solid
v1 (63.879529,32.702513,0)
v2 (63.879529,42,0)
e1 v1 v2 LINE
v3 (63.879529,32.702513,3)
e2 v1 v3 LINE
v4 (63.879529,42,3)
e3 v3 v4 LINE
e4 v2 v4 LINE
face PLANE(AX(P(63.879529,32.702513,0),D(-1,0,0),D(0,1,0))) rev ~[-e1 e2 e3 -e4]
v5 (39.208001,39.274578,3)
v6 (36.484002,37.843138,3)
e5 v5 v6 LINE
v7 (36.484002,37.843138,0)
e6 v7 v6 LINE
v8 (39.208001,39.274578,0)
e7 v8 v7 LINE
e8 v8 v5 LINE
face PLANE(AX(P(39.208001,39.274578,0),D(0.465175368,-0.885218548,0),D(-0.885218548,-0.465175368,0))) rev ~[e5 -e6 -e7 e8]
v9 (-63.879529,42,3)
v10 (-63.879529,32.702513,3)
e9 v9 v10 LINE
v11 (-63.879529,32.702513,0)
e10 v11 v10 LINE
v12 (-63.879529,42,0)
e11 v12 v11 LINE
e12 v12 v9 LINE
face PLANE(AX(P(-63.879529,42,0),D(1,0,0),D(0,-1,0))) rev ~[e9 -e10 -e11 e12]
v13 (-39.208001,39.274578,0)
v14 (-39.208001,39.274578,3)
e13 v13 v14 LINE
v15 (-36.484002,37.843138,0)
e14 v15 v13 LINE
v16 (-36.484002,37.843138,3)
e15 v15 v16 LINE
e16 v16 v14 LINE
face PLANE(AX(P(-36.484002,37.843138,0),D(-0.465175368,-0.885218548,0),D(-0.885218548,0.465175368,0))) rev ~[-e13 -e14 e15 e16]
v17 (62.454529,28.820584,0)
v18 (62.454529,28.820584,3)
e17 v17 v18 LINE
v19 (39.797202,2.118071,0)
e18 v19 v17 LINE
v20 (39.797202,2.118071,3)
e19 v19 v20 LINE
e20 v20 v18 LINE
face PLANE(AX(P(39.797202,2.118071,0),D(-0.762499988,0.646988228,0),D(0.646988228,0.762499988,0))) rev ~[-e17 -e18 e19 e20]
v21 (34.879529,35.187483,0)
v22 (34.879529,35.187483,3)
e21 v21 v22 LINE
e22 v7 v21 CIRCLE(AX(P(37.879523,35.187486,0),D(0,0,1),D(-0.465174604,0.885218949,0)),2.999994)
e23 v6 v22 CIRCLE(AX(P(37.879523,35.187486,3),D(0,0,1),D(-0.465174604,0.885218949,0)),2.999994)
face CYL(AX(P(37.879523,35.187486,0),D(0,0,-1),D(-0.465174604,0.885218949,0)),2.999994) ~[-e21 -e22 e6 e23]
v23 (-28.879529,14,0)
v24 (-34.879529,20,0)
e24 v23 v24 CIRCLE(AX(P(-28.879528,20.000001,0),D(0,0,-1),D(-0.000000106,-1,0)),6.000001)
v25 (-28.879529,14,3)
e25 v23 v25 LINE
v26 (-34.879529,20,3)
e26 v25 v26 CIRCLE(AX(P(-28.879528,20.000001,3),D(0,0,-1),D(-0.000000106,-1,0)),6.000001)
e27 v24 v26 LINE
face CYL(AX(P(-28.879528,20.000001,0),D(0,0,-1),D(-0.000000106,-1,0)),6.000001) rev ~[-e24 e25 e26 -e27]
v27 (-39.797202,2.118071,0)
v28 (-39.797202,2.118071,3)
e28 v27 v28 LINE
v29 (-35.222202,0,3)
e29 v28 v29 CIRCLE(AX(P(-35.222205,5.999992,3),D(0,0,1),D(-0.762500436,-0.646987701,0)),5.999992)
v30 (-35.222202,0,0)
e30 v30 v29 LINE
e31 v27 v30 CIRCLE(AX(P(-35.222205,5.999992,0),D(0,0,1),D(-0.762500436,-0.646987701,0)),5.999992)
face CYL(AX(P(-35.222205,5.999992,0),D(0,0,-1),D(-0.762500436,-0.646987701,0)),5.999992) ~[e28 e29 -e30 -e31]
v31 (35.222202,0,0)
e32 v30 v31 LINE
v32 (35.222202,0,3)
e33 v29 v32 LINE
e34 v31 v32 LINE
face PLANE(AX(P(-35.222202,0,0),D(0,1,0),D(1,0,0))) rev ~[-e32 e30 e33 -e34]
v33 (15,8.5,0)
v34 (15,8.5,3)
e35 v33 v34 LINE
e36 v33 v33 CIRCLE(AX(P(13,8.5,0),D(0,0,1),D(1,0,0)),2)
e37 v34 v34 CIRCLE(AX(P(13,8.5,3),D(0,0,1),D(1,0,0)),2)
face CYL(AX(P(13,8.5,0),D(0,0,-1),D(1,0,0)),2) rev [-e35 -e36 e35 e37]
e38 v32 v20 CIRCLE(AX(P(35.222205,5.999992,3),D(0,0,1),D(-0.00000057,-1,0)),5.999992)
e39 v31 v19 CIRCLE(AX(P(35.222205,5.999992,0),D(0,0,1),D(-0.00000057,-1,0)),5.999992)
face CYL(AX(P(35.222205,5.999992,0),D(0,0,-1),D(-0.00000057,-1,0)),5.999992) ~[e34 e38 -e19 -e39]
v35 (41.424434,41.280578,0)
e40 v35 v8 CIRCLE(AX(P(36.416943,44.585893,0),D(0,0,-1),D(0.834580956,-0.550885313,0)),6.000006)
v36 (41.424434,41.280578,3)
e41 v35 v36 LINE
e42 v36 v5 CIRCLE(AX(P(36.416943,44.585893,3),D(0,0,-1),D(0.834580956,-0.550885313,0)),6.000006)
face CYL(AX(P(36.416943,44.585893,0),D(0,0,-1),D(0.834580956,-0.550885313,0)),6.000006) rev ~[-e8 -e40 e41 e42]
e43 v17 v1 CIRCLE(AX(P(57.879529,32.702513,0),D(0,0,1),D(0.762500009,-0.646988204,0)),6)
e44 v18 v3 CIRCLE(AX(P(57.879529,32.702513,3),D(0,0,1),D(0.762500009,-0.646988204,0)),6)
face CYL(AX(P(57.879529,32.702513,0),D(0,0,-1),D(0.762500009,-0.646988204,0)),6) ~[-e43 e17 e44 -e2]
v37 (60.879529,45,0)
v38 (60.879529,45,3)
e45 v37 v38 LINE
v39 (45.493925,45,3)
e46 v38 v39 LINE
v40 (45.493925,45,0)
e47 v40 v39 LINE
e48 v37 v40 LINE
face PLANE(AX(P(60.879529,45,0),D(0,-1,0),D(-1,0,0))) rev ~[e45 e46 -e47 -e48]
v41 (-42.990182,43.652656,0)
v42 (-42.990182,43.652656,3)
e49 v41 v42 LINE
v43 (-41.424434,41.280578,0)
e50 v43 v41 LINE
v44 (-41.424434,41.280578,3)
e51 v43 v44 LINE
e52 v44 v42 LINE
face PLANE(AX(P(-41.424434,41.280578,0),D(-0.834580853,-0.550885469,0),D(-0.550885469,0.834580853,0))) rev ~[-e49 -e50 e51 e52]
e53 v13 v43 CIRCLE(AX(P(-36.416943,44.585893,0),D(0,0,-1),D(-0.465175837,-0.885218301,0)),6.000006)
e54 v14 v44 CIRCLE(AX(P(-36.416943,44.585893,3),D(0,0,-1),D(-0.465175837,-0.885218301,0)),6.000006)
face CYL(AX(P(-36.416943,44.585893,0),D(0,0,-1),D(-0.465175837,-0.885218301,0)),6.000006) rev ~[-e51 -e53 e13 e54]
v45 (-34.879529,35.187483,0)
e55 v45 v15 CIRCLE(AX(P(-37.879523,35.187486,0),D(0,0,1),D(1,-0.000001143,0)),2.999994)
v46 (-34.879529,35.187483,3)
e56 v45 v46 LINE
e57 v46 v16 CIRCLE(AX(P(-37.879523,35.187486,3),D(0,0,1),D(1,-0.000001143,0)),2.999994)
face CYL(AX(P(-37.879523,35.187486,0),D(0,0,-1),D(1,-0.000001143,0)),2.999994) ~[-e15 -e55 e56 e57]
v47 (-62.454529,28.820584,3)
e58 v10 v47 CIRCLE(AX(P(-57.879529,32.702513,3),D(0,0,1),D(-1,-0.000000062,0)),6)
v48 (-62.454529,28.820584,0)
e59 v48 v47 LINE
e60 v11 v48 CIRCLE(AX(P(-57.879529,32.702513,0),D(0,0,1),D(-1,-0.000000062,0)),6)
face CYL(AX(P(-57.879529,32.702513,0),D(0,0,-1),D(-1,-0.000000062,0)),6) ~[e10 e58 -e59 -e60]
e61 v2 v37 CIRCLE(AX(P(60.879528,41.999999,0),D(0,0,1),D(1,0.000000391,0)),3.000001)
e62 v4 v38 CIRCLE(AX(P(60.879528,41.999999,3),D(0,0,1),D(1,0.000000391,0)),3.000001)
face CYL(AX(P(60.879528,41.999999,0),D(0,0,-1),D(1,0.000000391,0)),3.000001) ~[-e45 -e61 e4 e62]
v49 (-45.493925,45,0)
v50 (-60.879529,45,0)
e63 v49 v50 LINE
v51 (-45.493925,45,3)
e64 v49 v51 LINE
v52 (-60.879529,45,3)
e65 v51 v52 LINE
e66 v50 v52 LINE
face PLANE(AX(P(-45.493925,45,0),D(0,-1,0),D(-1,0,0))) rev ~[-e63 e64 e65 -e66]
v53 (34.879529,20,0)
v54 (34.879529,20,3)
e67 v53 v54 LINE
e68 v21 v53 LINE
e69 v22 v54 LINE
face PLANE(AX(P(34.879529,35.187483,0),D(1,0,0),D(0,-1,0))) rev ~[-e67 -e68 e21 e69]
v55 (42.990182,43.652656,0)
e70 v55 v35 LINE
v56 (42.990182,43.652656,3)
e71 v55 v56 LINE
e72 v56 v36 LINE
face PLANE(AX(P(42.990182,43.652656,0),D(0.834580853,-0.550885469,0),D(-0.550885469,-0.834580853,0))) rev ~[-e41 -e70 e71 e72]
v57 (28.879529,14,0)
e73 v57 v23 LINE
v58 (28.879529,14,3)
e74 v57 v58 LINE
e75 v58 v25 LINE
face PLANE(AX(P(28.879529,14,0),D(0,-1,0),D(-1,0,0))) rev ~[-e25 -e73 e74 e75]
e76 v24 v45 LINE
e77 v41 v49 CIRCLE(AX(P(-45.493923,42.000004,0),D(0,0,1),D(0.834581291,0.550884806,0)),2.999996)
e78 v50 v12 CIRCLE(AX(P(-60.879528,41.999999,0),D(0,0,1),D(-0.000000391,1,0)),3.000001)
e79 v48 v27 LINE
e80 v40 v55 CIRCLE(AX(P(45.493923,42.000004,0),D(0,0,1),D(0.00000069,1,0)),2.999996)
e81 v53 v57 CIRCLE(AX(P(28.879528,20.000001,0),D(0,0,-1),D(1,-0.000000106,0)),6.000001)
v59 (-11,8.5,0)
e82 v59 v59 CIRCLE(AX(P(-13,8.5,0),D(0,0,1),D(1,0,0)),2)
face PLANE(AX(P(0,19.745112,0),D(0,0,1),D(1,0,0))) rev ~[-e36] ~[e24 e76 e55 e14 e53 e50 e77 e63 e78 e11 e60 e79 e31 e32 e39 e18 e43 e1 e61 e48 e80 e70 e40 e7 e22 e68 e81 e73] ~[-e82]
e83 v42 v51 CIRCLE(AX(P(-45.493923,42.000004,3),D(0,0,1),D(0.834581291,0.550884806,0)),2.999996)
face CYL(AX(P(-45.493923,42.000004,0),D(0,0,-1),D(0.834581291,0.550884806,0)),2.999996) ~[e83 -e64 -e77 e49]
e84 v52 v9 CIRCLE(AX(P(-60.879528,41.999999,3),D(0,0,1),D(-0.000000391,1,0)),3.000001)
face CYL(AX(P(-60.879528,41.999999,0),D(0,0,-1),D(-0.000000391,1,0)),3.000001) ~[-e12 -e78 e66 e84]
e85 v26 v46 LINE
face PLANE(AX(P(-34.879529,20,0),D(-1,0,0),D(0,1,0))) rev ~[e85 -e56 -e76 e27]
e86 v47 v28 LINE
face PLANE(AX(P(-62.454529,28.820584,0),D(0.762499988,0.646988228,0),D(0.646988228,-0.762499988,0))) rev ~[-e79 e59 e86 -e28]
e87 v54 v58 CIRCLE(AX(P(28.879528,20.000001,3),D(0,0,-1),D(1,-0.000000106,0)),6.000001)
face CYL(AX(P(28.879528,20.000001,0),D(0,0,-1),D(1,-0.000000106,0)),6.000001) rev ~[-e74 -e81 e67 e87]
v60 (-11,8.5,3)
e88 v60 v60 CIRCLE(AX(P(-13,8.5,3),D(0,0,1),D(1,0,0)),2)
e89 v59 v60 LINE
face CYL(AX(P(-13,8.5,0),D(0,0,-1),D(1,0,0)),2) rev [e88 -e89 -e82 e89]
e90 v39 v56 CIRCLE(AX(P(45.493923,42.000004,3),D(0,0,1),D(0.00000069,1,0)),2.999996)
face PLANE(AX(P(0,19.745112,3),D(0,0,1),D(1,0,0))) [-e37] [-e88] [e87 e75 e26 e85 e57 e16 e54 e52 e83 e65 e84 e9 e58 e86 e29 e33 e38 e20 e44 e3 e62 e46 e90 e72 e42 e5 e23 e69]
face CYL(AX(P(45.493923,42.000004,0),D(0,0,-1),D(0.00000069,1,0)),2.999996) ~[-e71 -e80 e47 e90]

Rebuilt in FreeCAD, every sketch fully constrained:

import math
import FreeCAD as App
import Part
import Sketcher
Q = App.Units.Quantity

doc = App.newDocument("Part")
body = doc.addObject("PartDesign::Body", "Body")

# Sketch on XY plane
sketch1 = body.newObject("Sketcher::SketchObject", "Sketch")
sketch1.AttachmentSupport = (doc.getObject("XY_Plane"), [""])
sketch1.MapMode = "FlatFace"
sketch1.addGeometry(Part.LineSegment(App.Vector(-35.222202, 0, 0), App.Vector(35.222202, 0, 0)), False)
sketch1.addGeometry(Part.ArcOfCircle(Part.Circle(App.Vector(35.222205, 5.999992, 0), App.Vector(0, 0, 1), 5.999992), math.radians(-90.000033), math.radians(-40.314871)), False)
sketch1.addGeometry(Part.LineSegment(App.Vector(39.797202, 2.118071, 0), App.Vector(62.454529, 28.820584, 0)), False)
sketch1.addGeometry(Part.ArcOfCircle(Part.Circle(App.Vector(57.879529, 32.702513, 0), App.Vector(0, 0, 1), 6), math.radians(-40.314908), math.radians(-0.000004)), False)
sketch1.addGeometry(Part.LineSegment(App.Vector(63.879529, 32.702513, 0), App.Vector(63.879529, 42, 0)), False)
sketch1.addGeometry(Part.ArcOfCircle(Part.Circle(App.Vector(60.879528, 41.999999, 0), App.Vector(0, 0, 1), 3.000001), math.radians(0.000022), math.radians(89.999978)), False)
sketch1.addGeometry(Part.LineSegment(App.Vector(60.879529, 45, 0), App.Vector(45.493925, 45, 0)), False)
sketch1.addGeometry(Part.ArcOfCircle(Part.Circle(App.Vector(45.493923, 42.000004, 0), App.Vector(0, 0, 1), 2.999996), math.radians(89.99996), math.radians(146.572264)), False)
sketch1.addGeometry(Part.LineSegment(App.Vector(42.990182, 43.652656, 0), App.Vector(41.424434, 41.280578, 0)), False)
sketch1.addGeometry(Part.ArcOfCircle(Part.Circle(App.Vector(36.416943, 44.585893, 0), App.Vector(0, 0, 1), 6.000006), math.radians(-62.278397), math.radians(-33.42777)), False)
sketch1.addGeometry(Part.LineSegment(App.Vector(39.208001, 39.274578, 0), App.Vector(36.484002, 37.843138, 0)), False)
sketch1.addGeometry(Part.ArcOfCircle(Part.Circle(App.Vector(37.879523, 35.187486, 0), App.Vector(0, 0, 1), 2.999994), math.radians(117.721523), math.radians(180.000065)), False)
sketch1.addGeometry(Part.LineSegment(App.Vector(34.879529, 35.187483, 0), App.Vector(34.879529, 20, 0)), False)
sketch1.addGeometry(Part.ArcOfCircle(Part.Circle(App.Vector(28.879528, 20.000001, 0), App.Vector(0, 0, 1), 6.000001), math.radians(-89.999994), math.radians(-0.000006)), False)
sketch1.addGeometry(Part.LineSegment(App.Vector(28.879529, 14, 0), App.Vector(-28.879529, 14, 0)), False)
sketch1.addGeometry(Part.ArcOfCircle(Part.Circle(App.Vector(-28.879528, 20.000001, 0), App.Vector(0, 0, 1), 6.000001), math.radians(-179.999994), math.radians(-90.000006)), False)
sketch1.addGeometry(Part.LineSegment(App.Vector(-34.879529, 20, 0), App.Vector(-34.879529, 35.187483, 0)), False)
sketch1.addGeometry(Part.ArcOfCircle(Part.Circle(App.Vector(-37.879523, 35.187486, 0), App.Vector(0, 0, 1), 2.999994), math.radians(-0.000065), math.radians(62.278477)), False)
sketch1.addGeometry(Part.LineSegment(App.Vector(-36.484002, 37.843138, 0), App.Vector(-39.208001, 39.274578, 0)), False)
sketch1.addGeometry(Part.ArcOfCircle(Part.Circle(App.Vector(-36.416943, 44.585893, 0), App.Vector(0, 0, 1), 6.000006), math.radians(-146.57223), math.radians(-117.721603)), False)
sketch1.addGeometry(Part.LineSegment(App.Vector(-41.424434, 41.280578, 0), App.Vector(-42.990182, 43.652656, 0)), False)
sketch1.addGeometry(Part.ArcOfCircle(Part.Circle(App.Vector(-45.493923, 42.000004, 0), App.Vector(0, 0, 1), 2.999996), math.radians(33.427736), math.radians(90.00004)), False)
sketch1.addGeometry(Part.LineSegment(App.Vector(-45.493925, 45, 0), App.Vector(-60.879529, 45, 0)), False)
sketch1.addGeometry(Part.ArcOfCircle(Part.Circle(App.Vector(-60.879528, 41.999999, 0), App.Vector(0, 0, 1), 3.000001), math.radians(90.000022), math.radians(179.999978)), False)
sketch1.addGeometry(Part.LineSegment(App.Vector(-63.879529, 42, 0), App.Vector(-63.879529, 32.702513, 0)), False)
sketch1.addGeometry(Part.ArcOfCircle(Part.Circle(App.Vector(-57.879529, 32.702513, 0), App.Vector(0, 0, 1), 6), math.radians(-179.999996), math.radians(-139.685092)), False)
sketch1.addGeometry(Part.LineSegment(App.Vector(-62.454529, 28.820584, 0), App.Vector(-39.797202, 2.118071, 0)), False)
sketch1.addGeometry(Part.ArcOfCircle(Part.Circle(App.Vector(-35.222205, 5.999992, 0), App.Vector(0, 0, 1), 5.999992), math.radians(-139.685129), math.radians(-89.999967)), False)
sketch1.addGeometry(Part.Circle(App.Vector(-13, 8.5, 0), App.Vector(0, 0, 1), 2), False)
sketch1.addGeometry(Part.Circle(App.Vector(13, 8.5, 0), App.Vector(0, 0, 1), 2), False)
sketch1.addConstraint(Sketcher.Constraint("Coincident", 0, 2, 1, 1))
sketch1.addConstraint(Sketcher.Constraint("Coincident", 1, 2, 2, 1))
sketch1.addConstraint(Sketcher.Constraint("Coincident", 2, 2, 3, 1))
sketch1.addConstraint(Sketcher.Constraint("Coincident", 3, 2, 4, 1))
sketch1.addConstraint(Sketcher.Constraint("Coincident", 4, 2, 5, 1))
sketch1.addConstraint(Sketcher.Constraint("Coincident", 5, 2, 6, 1))
sketch1.addConstraint(Sketcher.Constraint("Coincident", 6, 2, 7, 1))
sketch1.addConstraint(Sketcher.Constraint("Coincident", 7, 2, 8, 1))
sketch1.addConstraint(Sketcher.Constraint("Coincident", 8, 2, 9, 2))
sketch1.addConstraint(Sketcher.Constraint("Coincident", 9, 1, 10, 1))
sketch1.addConstraint(Sketcher.Constraint("Coincident", 10, 2, 11, 1))
sketch1.addConstraint(Sketcher.Constraint("Coincident", 11, 2, 12, 1))
sketch1.addConstraint(Sketcher.Constraint("Coincident", 12, 2, 13, 2))
sketch1.addConstraint(Sketcher.Constraint("Coincident", 13, 1, 14, 1))
sketch1.addConstraint(Sketcher.Constraint("Coincident", 14, 2, 15, 2))
sketch1.addConstraint(Sketcher.Constraint("Coincident", 15, 1, 16, 1))
sketch1.addConstraint(Sketcher.Constraint("Coincident", 16, 2, 17, 1))
sketch1.addConstraint(Sketcher.Constraint("Coincident", 17, 2, 18, 1))
sketch1.addConstraint(Sketcher.Constraint("Coincident", 18, 2, 19, 2))
sketch1.addConstraint(Sketcher.Constraint("Coincident", 19, 1, 20, 1))
sketch1.addConstraint(Sketcher.Constraint("Coincident", 20, 2, 21, 1))
sketch1.addConstraint(Sketcher.Constraint("Coincident", 21, 2, 22, 1))
sketch1.addConstraint(Sketcher.Constraint("Coincident", 22, 2, 23, 1))
sketch1.addConstraint(Sketcher.Constraint("Coincident", 23, 2, 24, 1))
sketch1.addConstraint(Sketcher.Constraint("Coincident", 24, 2, 25, 1))
sketch1.addConstraint(Sketcher.Constraint("Coincident", 25, 2, 26, 1))
sketch1.addConstraint(Sketcher.Constraint("Coincident", 26, 2, 27, 1))
sketch1.addConstraint(Sketcher.Constraint("Coincident", 27, 2, 0, 1))
sketch1.addConstraint(Sketcher.Constraint("Horizontal", 0))
sketch1.addConstraint(Sketcher.Constraint("Vertical", 4))
sketch1.addConstraint(Sketcher.Constraint("Horizontal", 6))
sketch1.addConstraint(Sketcher.Constraint("Vertical", 12))
sketch1.addConstraint(Sketcher.Constraint("Horizontal", 14))
sketch1.addConstraint(Sketcher.Constraint("Vertical", 16))
sketch1.addConstraint(Sketcher.Constraint("Horizontal", 22))
sketch1.addConstraint(Sketcher.Constraint("Vertical", 24))
sketch1.addConstraint(Sketcher.Constraint("PointOnObject", 0, 2, -1))
sketch1.addConstraint(Sketcher.Constraint("Diameter", 28, Q("4 mm")))
sketch1.addConstraint(Sketcher.Constraint("Diameter", 29, Q("4 mm")))
sketch1.addConstraint(Sketcher.Constraint("Radius", 3, Q("6 mm")))
sketch1.addConstraint(Sketcher.Constraint("Radius", 5, Q("3.000001 mm")))
sketch1.addConstraint(Sketcher.Constraint("Radius", 13, Q("6.000001 mm")))
sketch1.addConstraint(Sketcher.Constraint("Radius", 15, Q("6.000001 mm")))
sketch1.addConstraint(Sketcher.Constraint("Radius", 23, Q("3.000001 mm")))
sketch1.addConstraint(Sketcher.Constraint("Radius", 25, Q("6 mm")))
sketch1.addConstraint(Sketcher.Constraint("DistanceY", -1, 1, 5, 3, Q("41.999999 mm")))
sketch1.addConstraint(Sketcher.Constraint("DistanceY", -1, 1, 13, 3, Q("20.000001 mm")))
sketch1.addConstraint(Sketcher.Constraint("DistanceY", -1, 1, 23, 3, Q("41.999999 mm")))
sketch1.addConstraint(Sketcher.Constraint("DistanceX", 28, 3, -1, 1, Q("13 mm")))
sketch1.addConstraint(Sketcher.Constraint("DistanceX", -1, 1, 29, 3, Q("13 mm")))
sketch1.addConstraint(Sketcher.Constraint("DistanceY", -1, 1, 4, 2, Q("42 mm")))
sketch1.addConstraint(Sketcher.Constraint("DistanceY", -1, 1, 12, 2, Q("20 mm")))
sketch1.addConstraint(Sketcher.Constraint("DistanceY", -1, 1, 15, 1, Q("20 mm")))
sketch1.addConstraint(Sketcher.Constraint("DistanceY", -1, 1, 23, 2, Q("42 mm")))
sketch1.addConstraint(Sketcher.Constraint("DistanceX", 13, 3, 3, 3, Q("29 mm")))
sketch1.addConstraint(Sketcher.Constraint("DistanceX", 23, 3, 15, 3, Q("31.999999 mm")))
sketch1.addConstraint(Sketcher.Constraint("DistanceX", 5, 2, 4, 2, Q("3 mm")))
sketch1.addConstraint(Sketcher.Constraint("DistanceX", 13, 1, 12, 2, Q("6 mm")))
sketch1.addConstraint(Sketcher.Constraint("DistanceX", 15, 1, 14, 2, Q("6 mm")))
sketch1.addConstraint(Sketcher.Constraint("DistanceX", 22, 2, 25, 3, Q("3 mm")))
sketch1.addConstraint(Sketcher.Constraint("DistanceY", -1, 1, 28, 3, Q("8.5 mm")))
sketch1.addConstraint(Sketcher.Constraint("DistanceY", -1, 1, 29, 3, Q("8.5 mm")))
sketch1.addConstraint(Sketcher.Constraint("DistanceX", -1, 1, 9, 1, Q("39.208001 mm")))
sketch1.addConstraint(Sketcher.Constraint("DistanceX", -1, 1, 10, 2, Q("36.484002 mm")))
sketch1.addConstraint(Sketcher.Constraint("DistanceX", 18, 2, -1, 1, Q("39.208001 mm")))
sketch1.addConstraint(Sketcher.Constraint("Radius", 1, Q("5.999992 mm")))
sketch1.addConstraint(Sketcher.Constraint("Radius", 7, Q("2.999996 mm")))
sketch1.addConstraint(Sketcher.Constraint("Radius", 9, Q("6.000006 mm")))
sketch1.addConstraint(Sketcher.Constraint("Radius", 11, Q("2.999994 mm")))
sketch1.addConstraint(Sketcher.Constraint("Radius", 17, Q("2.999994 mm")))
sketch1.addConstraint(Sketcher.Constraint("Radius", 19, Q("6.000006 mm")))
sketch1.addConstraint(Sketcher.Constraint("Radius", 21, Q("2.999996 mm")))
sketch1.addConstraint(Sketcher.Constraint("Radius", 27, Q("5.999992 mm")))
sketch1.addConstraint(Sketcher.Constraint("DistanceX", 0, 2, 1, 2, Q("4.575 mm")))
sketch1.addConstraint(Sketcher.Constraint("DistanceX", 3, 3, 2, 2, Q("4.575 mm")))
sketch1.addConstraint(Sketcher.Constraint("DistanceY", 9, 1, 8, 2, Q("2.006 mm")))
sketch1.addConstraint(Sketcher.Constraint("DistanceX", 18, 2, 17, 2, Q("2.723999 mm")))
sketch1.addConstraint(Sketcher.Constraint("DistanceY", 18, 2, 19, 1, Q("2.006 mm")))
sketch1.addConstraint(Sketcher.Constraint("DistanceX", 24, 2, 25, 2, Q("1.425 mm")))
sketch1.addConstraint(Sketcher.Constraint("DistanceX", 26, 2, 27, 2, Q("4.575 mm")))
sketch1.addConstraint(Sketcher.Constraint("DistanceX", 14, 2, 14, 1, Q("57.759058 mm")))
sketch1.addConstraint(Sketcher.Constraint("DistanceX", -1, 1, 1, 2, Q("39.797202 mm")))
sketch1.addConstraint(Sketcher.Constraint("DistanceY", 1, 3, 9, 3, Q("38.585901 mm")))
sketch1.addConstraint(Sketcher.Constraint("DistanceX", 11, 3, 7, 3, Q("7.6144 mm")))
sketch1.addConstraint(Sketcher.Constraint("DistanceX", 21, 3, 17, 3, Q("7.6144 mm")))
sketch1.addConstraint(Sketcher.Constraint("DistanceY", 27, 3, 19, 3, Q("38.585901 mm")))
sketch1.addConstraint(Sketcher.Constraint("DistanceX", 11, 3, 6, 2, Q("7.614402 mm")))
sketch1.addConstraint(Sketcher.Constraint("DistanceX", 26, 2, 28, 3, Q("26.797202 mm")))
sketch1.addConstraint(Sketcher.Constraint("Distance", 2, Q("35.01969 mm")))
sketch1.addConstraint(Sketcher.Constraint("Distance", 8, Q("2.842239 mm")))
sketch1.addConstraint(Sketcher.Constraint("Distance", 20, Q("2.842239 mm")))
sketch1.addConstraint(Sketcher.Constraint("Distance", 26, Q("35.01969 mm")))
sketch1.addConstraint(Sketcher.Constraint("DistanceX", 22, 2, 22, 1, Q("15.385604 mm")))
sketch1.addConstraint(Sketcher.Constraint("DistanceY", 4, 1, 4, 2, Q("9.297487 mm")))
sketch1.addConstraint(Sketcher.Constraint("DistanceY", 12, 2, 12, 1, Q("15.187483 mm")))
sketch1.addConstraint(Sketcher.Constraint("DistanceY", 16, 1, 16, 2, Q("15.187483 mm")))
sketch1.addConstraint(Sketcher.Constraint("DistanceY", 24, 2, 24, 1, Q("9.297487 mm")))
sketch1.addConstraint(Sketcher.Constraint("DistanceX", -1, 1, 3, 3, Q("57.879529 mm")))
sketch1.addConstraint(Sketcher.Constraint("DistanceY", -1, 1, 1, 2, Q("2.118071 mm")))
sketch1.addConstraint(Sketcher.Constraint("DistanceY", -1, 1, 9, 1, Q("39.274578 mm")))
sketch1.addConstraint(Sketcher.Constraint("DistanceY", -1, 1, 10, 2, Q("37.843138 mm")))
sketch1.addConstraint(Sketcher.Constraint("DistanceX", 20, 2, -1, 1, Q("42.990182 mm")))
sketch1.addConstraint(Sketcher.Constraint("DistanceY", -1, 1, 26, 2, Q("2.118071 mm")))
sketch1.addConstraint(Sketcher.Constraint("DistanceY", 17, 2, 18, 2, Q("1.43144 mm")))
pad1 = body.newObject("PartDesign::Pad", "Pad")
pad1.Profile = sketch1
pad1.Length = 3

doc.recompute()
